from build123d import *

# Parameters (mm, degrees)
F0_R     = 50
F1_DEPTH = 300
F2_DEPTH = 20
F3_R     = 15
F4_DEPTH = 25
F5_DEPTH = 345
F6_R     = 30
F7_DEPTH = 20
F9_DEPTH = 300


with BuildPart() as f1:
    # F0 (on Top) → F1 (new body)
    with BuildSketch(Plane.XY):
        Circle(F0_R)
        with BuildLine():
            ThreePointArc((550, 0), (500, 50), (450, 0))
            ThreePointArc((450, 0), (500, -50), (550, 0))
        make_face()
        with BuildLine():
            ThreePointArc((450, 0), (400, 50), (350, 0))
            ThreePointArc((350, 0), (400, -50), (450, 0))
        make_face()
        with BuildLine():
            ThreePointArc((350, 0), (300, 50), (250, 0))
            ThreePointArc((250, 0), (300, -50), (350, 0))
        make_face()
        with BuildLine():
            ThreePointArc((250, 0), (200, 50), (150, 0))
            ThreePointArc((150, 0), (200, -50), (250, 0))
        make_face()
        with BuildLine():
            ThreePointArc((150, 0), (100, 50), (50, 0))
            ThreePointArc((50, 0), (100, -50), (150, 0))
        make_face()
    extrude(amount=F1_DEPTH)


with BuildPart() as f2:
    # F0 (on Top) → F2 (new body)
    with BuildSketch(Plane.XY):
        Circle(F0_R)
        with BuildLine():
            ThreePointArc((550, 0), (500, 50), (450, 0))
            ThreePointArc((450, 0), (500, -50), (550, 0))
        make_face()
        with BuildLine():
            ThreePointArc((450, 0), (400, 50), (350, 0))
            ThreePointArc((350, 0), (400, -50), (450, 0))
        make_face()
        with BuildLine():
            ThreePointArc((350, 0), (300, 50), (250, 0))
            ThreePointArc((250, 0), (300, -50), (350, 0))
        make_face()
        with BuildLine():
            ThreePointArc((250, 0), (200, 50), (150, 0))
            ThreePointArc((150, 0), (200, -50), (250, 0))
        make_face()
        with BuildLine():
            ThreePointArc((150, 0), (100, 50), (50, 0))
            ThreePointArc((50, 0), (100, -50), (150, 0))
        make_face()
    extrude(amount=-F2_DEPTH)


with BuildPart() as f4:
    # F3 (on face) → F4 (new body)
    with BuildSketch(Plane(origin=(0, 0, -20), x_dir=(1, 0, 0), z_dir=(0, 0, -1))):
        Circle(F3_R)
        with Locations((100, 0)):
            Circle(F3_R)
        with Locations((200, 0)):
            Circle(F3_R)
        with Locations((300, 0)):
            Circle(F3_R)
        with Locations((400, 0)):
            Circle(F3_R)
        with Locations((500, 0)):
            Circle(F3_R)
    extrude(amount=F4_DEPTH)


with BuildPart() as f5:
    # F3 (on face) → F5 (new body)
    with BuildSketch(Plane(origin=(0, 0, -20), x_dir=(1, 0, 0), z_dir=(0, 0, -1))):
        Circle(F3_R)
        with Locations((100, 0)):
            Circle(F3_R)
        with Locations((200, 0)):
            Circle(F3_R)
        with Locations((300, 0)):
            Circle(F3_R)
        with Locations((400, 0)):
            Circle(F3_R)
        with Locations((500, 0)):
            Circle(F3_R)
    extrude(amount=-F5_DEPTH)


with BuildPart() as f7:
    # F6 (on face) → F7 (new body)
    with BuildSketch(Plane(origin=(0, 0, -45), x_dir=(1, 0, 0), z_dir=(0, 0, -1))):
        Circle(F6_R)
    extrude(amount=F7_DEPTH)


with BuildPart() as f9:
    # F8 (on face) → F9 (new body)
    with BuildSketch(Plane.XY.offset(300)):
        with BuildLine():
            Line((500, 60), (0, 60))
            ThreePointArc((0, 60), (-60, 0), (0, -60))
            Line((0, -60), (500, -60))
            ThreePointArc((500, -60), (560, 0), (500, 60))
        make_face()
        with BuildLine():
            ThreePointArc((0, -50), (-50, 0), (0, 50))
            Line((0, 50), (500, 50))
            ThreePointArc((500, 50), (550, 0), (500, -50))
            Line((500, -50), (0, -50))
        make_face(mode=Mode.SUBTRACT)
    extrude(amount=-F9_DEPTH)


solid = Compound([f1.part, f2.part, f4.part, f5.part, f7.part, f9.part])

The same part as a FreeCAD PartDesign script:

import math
import FreeCAD as App
import Part
import Sketcher
from FreeCAD import Vector

doc = App.newDocument("Part")
body = doc.addObject("PartDesign::Body", "Body")
body.AllowCompound = True

sketch1 = body.newObject("Sketcher::SketchObject", "Sketch")
sketch1.AttachmentSupport = (doc.getObject("XY_Plane"), [""])
sketch1.MapMode = "FlatFace"
sketch1.addGeometry(Part.Circle(Vector(0, 0, 0), Vector(0, 0, 1), 50), False)
sketch1.addGeometry(Part.Circle(Vector(500, 0, 0), Vector(0, 0, 1), 50), False)
sketch1.addGeometry(Part.ArcOfCircle(Part.Circle(Vector(400, 0, 0), Vector(0, 0, 1), 50), math.radians(0), math.radians(179.999999)), False)
sketch1.addGeometry(Part.ArcOfCircle(Part.Circle(Vector(400, 0, 0), Vector(0, 0, 1), 50), math.radians(179.999999), math.radians(360)), False)
sketch1.addGeometry(Part.ArcOfCircle(Part.Circle(Vector(300, 0, 0), Vector(0, 0, 1), 50), math.radians(0.000001), math.radians(180)), False)
sketch1.addGeometry(Part.ArcOfCircle(Part.Circle(Vector(300, 0, 0), Vector(0, 0, 1), 50), math.radians(180), math.radians(360.000001)), False)
sketch1.addGeometry(Part.ArcOfCircle(Part.Circle(Vector(200, 0, 0), Vector(0, 0, 1), 50), math.radians(0), math.radians(180)), False)
sketch1.addGeometry(Part.ArcOfCircle(Part.Circle(Vector(200, 0, 0), Vector(0, 0, 1), 50), math.radians(-180), math.radians(0)), False)
sketch1.addGeometry(Part.ArcOfCircle(Part.Circle(Vector(100, 0, 0), Vector(0, 0, 1), 50), math.radians(180), math.radians(360)), False)
sketch1.addGeometry(Part.ArcOfCircle(Part.Circle(Vector(100, 0, 0), Vector(0, 0, 1), 50), math.radians(0), math.radians(180)), False)
sketch1.addConstraint(Sketcher.Constraint("Tangent", 2, 1, 3, 2))
sketch1.addConstraint(Sketcher.Constraint("Coincident", 3, 1, 2, 2))
sketch1.addConstraint(Sketcher.Constraint("Tangent", 4, 1, 5, 2))
sketch1.addConstraint(Sketcher.Constraint("Coincident", 5, 1, 4, 2))
sketch1.addConstraint(Sketcher.Constraint("Tangent", 6, 1, 7, 2))
sketch1.addConstraint(Sketcher.Constraint("Coincident", 7, 1, 6, 2))
sketch1.addConstraint(Sketcher.Constraint("Tangent", 8, 1, 9, 2))
sketch1.addConstraint(Sketcher.Constraint("Coincident", 9, 1, 8, 2))
sketch1.addConstraint(Sketcher.Constraint("Coincident", 0, 3, -1, 1))
sketch1.addConstraint(Sketcher.Constraint("Coincident", 4, 1, 3, 1))
sketch1.addConstraint(Sketcher.Constraint("Coincident", 6, 1, 5, 1))
sketch1.addConstraint(Sketcher.Constraint("Coincident", 9, 1, 7, 1))
sketch1.addConstraint(Sketcher.Constraint("Equal", 0, 1))
sketch1.addConstraint(Sketcher.Constraint("Equal", 1, 2))
sketch1.addConstraint(Sketcher.Constraint("Equal", 3, 4))
sketch1.addConstraint(Sketcher.Constraint("Equal", 5, 6))
sketch1.addConstraint(Sketcher.Constraint("Equal", 7, 8))
sketch1.addConstraint(Sketcher.Constraint("PointOnObject", 1, 3, -1))
sketch1.addConstraint(Sketcher.Constraint("PointOnObject", 2, 3, -1))
sketch1.addConstraint(Sketcher.Constraint("PointOnObject", 4, 3, -1))
sketch1.addConstraint(Sketcher.Constraint("PointOnObject", 6, 3, -1))
sketch1.addConstraint(Sketcher.Constraint("PointOnObject", 8, 3, -1))
sketch1.addConstraint(Sketcher.Constraint("PointOnObject", 2, 1, -1))
sketch1.addConstraint(Sketcher.Constraint("PointOnObject", 3, 1, -1))
sketch1.addConstraint(Sketcher.Constraint("PointOnObject", 5, 1, -1))
sketch1.addConstraint(Sketcher.Constraint("PointOnObject", 7, 1, -1))
sketch1.addConstraint(Sketcher.Constraint("PointOnObject", 8, 1, -1))
sketch1.addConstraint(Sketcher.Constraint("Diameter", 0, 100.0))
sketch1.addConstraint(Sketcher.Constraint("DistanceX", -1, 1, 1, 3, 500.0))
sketch1.addConstraint(Sketcher.Constraint("DistanceX", -1, 1, 2, 3, 400.0))
pad1 = body.newObject("PartDesign::Pad", "Pad")
pad1.Profile = sketch1
pad1.Length = 300
body2 = doc.addObject("PartDesign::Body", "Body001")
body2.AllowCompound = True

sketch2 = body2.newObject("Sketcher::SketchObject", "Sketch001")
sketch2.AttachmentSupport = (doc.getObject("XY_Plane001"), [""])
sketch2.MapMode = "FlatFace"
sketch2.addGeometry(Part.Circle(Vector(0, 0, 0), Vector(0, 0, 1), 50), False)
sketch2.addGeometry(Part.Circle(Vector(500, 0, 0), Vector(0, 0, 1), 50), False)
sketch2.addGeometry(Part.ArcOfCircle(Part.Circle(Vector(400, 0, 0), Vector(0, 0, 1), 50), math.radians(0), math.radians(179.999999)), False)
sketch2.addGeometry(Part.ArcOfCircle(Part.Circle(Vector(400, 0, 0), Vector(0, 0, 1), 50), math.radians(179.999999), math.radians(360)), False)
sketch2.addGeometry(Part.ArcOfCircle(Part.Circle(Vector(300, 0, 0), Vector(0, 0, 1), 50), math.radians(0.000001), math.radians(180)), False)
sketch2.addGeometry(Part.ArcOfCircle(Part.Circle(Vector(300, 0, 0), Vector(0, 0, 1), 50), math.radians(180), math.radians(360.000001)), False)
sketch2.addGeometry(Part.ArcOfCircle(Part.Circle(Vector(200, 0, 0), Vector(0, 0, 1), 50), math.radians(0), math.radians(180)), False)
sketch2.addGeometry(Part.ArcOfCircle(Part.Circle(Vector(200, 0, 0), Vector(0, 0, 1), 50), math.radians(-180), math.radians(0)), False)
sketch2.addGeometry(Part.ArcOfCircle(Part.Circle(Vector(100, 0, 0), Vector(0, 0, 1), 50), math.radians(180), math.radians(360)), False)
sketch2.addGeometry(Part.ArcOfCircle(Part.Circle(Vector(100, 0, 0), Vector(0, 0, 1), 50), math.radians(0), math.radians(180)), False)
sketch2.addConstraint(Sketcher.Constraint("Tangent", 2, 1, 3, 2))
sketch2.addConstraint(Sketcher.Constraint("Coincident", 3, 1, 2, 2))
sketch2.addConstraint(Sketcher.Constraint("Tangent", 4, 1, 5, 2))
sketch2.addConstraint(Sketcher.Constraint("Coincident", 5, 1, 4, 2))
sketch2.addConstraint(Sketcher.Constraint("Tangent", 6, 1, 7, 2))
sketch2.addConstraint(Sketcher.Constraint("Coincident", 7, 1, 6, 2))
sketch2.addConstraint(Sketcher.Constraint("Tangent", 8, 1, 9, 2))
sketch2.addConstraint(Sketcher.Constraint("Coincident", 9, 1, 8, 2))
sketch2.addConstraint(Sketcher.Constraint("Coincident", 0, 3, -1, 1))
sketch2.addConstraint(Sketcher.Constraint("Coincident", 4, 1, 3, 1))
sketch2.addConstraint(Sketcher.Constraint("Coincident", 6, 1, 5, 1))
sketch2.addConstraint(Sketcher.Constraint("Coincident", 9, 1, 7, 1))
sketch2.addConstraint(Sketcher.Constraint("Equal", 0, 1))
sketch2.addConstraint(Sketcher.Constraint("Equal", 1, 2))
sketch2.addConstraint(Sketcher.Constraint("Equal", 3, 4))
sketch2.addConstraint(Sketcher.Constraint("Equal", 5, 6))
sketch2.addConstraint(Sketcher.Constraint("Equal", 7, 8))
sketch2.addConstraint(Sketcher.Constraint("PointOnObject", 1, 3, -1))
sketch2.addConstraint(Sketcher.Constraint("PointOnObject", 2, 3, -1))
sketch2.addConstraint(Sketcher.Constraint("PointOnObject", 4, 3, -1))
sketch2.addConstraint(Sketcher.Constraint("PointOnObject", 6, 3, -1))
sketch2.addConstraint(Sketcher.Constraint("PointOnObject", 8, 3, -1))
sketch2.addConstraint(Sketcher.Constraint("PointOnObject", 2, 1, -1))
sketch2.addConstraint(Sketcher.Constraint("PointOnObject", 3, 1, -1))
sketch2.addConstraint(Sketcher.Constraint("PointOnObject", 5, 1, -1))
sketch2.addConstraint(Sketcher.Constraint("PointOnObject", 7, 1, -1))
sketch2.addConstraint(Sketcher.Constraint("PointOnObject", 8, 1, -1))
sketch2.addConstraint(Sketcher.Constraint("Diameter", 0, 100.0))
sketch2.addConstraint(Sketcher.Constraint("DistanceX", -1, 1, 1, 3, 500.0))
sketch2.addConstraint(Sketcher.Constraint("DistanceX", -1, 1, 2, 3, 400.0))
pad2 = body2.newObject("PartDesign::Pad", "Pad001")
pad2.Profile = sketch2
pad2.Length = 20
pad2.Reversed = True
body3 = doc.addObject("PartDesign::Body", "Body002")
body3.AllowCompound = True

sketch3 = body3.newObject("Sketcher::SketchObject", "Sketch002")
sketch3.AttachmentSupport = (doc.getObject("XY_Plane002"), [""])
sketch3.MapMode = "FlatFace"
sketch3.AttachmentOffset = App.Placement(Vector(0, 0, -20), App.Rotation())
sketch3.addGeometry(Part.Circle(Vector(0, 0, 0), Vector(0, 0, 1), 15), False)
sketch3.addGeometry(Part.Circle(Vector(100, 0, 0), Vector(0, 0, 1), 15), False)
sketch3.addGeometry(Part.Circle(Vector(200, 0, 0), Vector(0, 0, 1), 15), False)
sketch3.addGeometry(Part.Circle(Vector(300, 0, 0), Vector(0, 0, 1), 15), False)
sketch3.addGeometry(Part.Circle(Vector(400, 0, 0), Vector(0, 0, 1), 15), False)
sketch3.addGeometry(Part.Circle(Vector(500, 0, 0), Vector(0, 0, 1), 15), False)
sketch3.addConstraint(Sketcher.Constraint("Coincident", 0, 3, -1, 1))
sketch3.addConstraint(Sketcher.Constraint("Equal", 0, 1))
sketch3.addConstraint(Sketcher.Constraint("Equal", 1, 2))
sketch3.addConstraint(Sketcher.Constraint("Equal", 2, 3))
sketch3.addConstraint(Sketcher.Constraint("Equal", 3, 4))
sketch3.addConstraint(Sketcher.Constraint("Equal", 4, 5))
sketch3.addConstraint(Sketcher.Constraint("PointOnObject", 1, 3, -1))
sketch3.addConstraint(Sketcher.Constraint("PointOnObject", 2, 3, -1))
sketch3.addConstraint(Sketcher.Constraint("PointOnObject", 3, 3, -1))
sketch3.addConstraint(Sketcher.Constraint("PointOnObject", 4, 3, -1))
sketch3.addConstraint(Sketcher.Constraint("PointOnObject", 5, 3, -1))
sketch3.addConstraint(Sketcher.Constraint("Diameter", 0, 30.0))
sketch3.addConstraint(Sketcher.Constraint("DistanceX", -1, 1, 1, 3, 100.0))
sketch3.addConstraint(Sketcher.Constraint("DistanceX", -1, 1, 2, 3, 200.0))
sketch3.addConstraint(Sketcher.Constraint("DistanceX", -1, 1, 3, 3, 300.0))
sketch3.addConstraint(Sketcher.Constraint("DistanceX", -1, 1, 4, 3, 400.0))
sketch3.addConstraint(Sketcher.Constraint("DistanceX", -1, 1, 5, 3, 500.0))
pad3 = body3.newObject("PartDesign::Pad", "Pad002")
pad3.Profile = sketch3
pad3.Length = 25
pad3.Reversed = True
body4 = doc.addObject("PartDesign::Body", "Body003")
body4.AllowCompound = True

sketch4 = body4.newObject("Sketcher::SketchObject", "Sketch003")
sketch4.AttachmentSupport = (doc.getObject("XY_Plane003"), [""])
sketch4.MapMode = "FlatFace"
sketch4.AttachmentOffset = App.Placement(Vector(0, 0, -20), App.Rotation())
sketch4.addGeometry(Part.Circle(Vector(0, 0, 0), Vector(0, 0, 1), 15), False)
sketch4.addGeometry(Part.Circle(Vector(100, 0, 0), Vector(0, 0, 1), 15), False)
sketch4.addGeometry(Part.Circle(Vector(200, 0, 0), Vector(0, 0, 1), 15), False)
sketch4.addGeometry(Part.Circle(Vector(300, 0, 0), Vector(0, 0, 1), 15), False)
sketch4.addGeometry(Part.Circle(Vector(400, 0, 0), Vector(0, 0, 1), 15), False)
sketch4.addGeometry(Part.Circle(Vector(500, 0, 0), Vector(0, 0, 1), 15), False)
sketch4.addConstraint(Sketcher.Constraint("Coincident", 0, 3, -1, 1))
sketch4.addConstraint(Sketcher.Constraint("Equal", 0, 1))
sketch4.addConstraint(Sketcher.Constraint("Equal", 1, 2))
sketch4.addConstraint(Sketcher.Constraint("Equal", 2, 3))
sketch4.addConstraint(Sketcher.Constraint("Equal", 3, 4))
sketch4.addConstraint(Sketcher.Constraint("Equal", 4, 5))
sketch4.addConstraint(Sketcher.Constraint("PointOnObject", 1, 3, -1))
sketch4.addConstraint(Sketcher.Constraint("PointOnObject", 2, 3, -1))
sketch4.addConstraint(Sketcher.Constraint("PointOnObject", 3, 3, -1))
sketch4.addConstraint(Sketcher.Constraint("PointOnObject", 4, 3, -1))
sketch4.addConstraint(Sketcher.Constraint("PointOnObject", 5, 3, -1))
sketch4.addConstraint(Sketcher.Constraint("Diameter", 0, 30.0))
sketch4.addConstraint(Sketcher.Constraint("DistanceX", -1, 1, 1, 3, 100.0))
sketch4.addConstraint(Sketcher.Constraint("DistanceX", -1, 1, 2, 3, 200.0))
sketch4.addConstraint(Sketcher.Constraint("DistanceX", -1, 1, 3, 3, 300.0))
sketch4.addConstraint(Sketcher.Constraint("DistanceX", -1, 1, 4, 3, 400.0))
sketch4.addConstraint(Sketcher.Constraint("DistanceX", -1, 1, 5, 3, 500.0))
pad4 = body4.newObject("PartDesign::Pad", "Pad003")
pad4.Profile = sketch4
pad4.Length = 345
body5 = doc.addObject("PartDesign::Body", "Body004")

sketch5 = body5.newObject("Sketcher::SketchObject", "Sketch004")
sketch5.AttachmentSupport = (doc.getObject("XY_Plane004"), [""])
sketch5.MapMode = "FlatFace"
sketch5.AttachmentOffset = App.Placement(Vector(0, 0, -45), App.Rotation())
sketch5.addGeometry(Part.Circle(Vector(0, 0, 0), Vector(0, 0, 1), 30), False)
sketch5.addConstraint(Sketcher.Constraint("Coincident", 0, 3, -1, 1))
sketch5.addConstraint(Sketcher.Constraint("Diameter", 0, 60.0))
pad5 = body5.newObject("PartDesign::Pad", "Pad004")
pad5.Profile = sketch5
pad5.Length = 20
pad5.Reversed = True
body6 = doc.addObject("PartDesign::Body", "Body005")

sketch6 = body6.newObject("Sketcher::SketchObject", "Sketch005")
sketch6.AttachmentSupport = (doc.getObject("XY_Plane005"), [""])
sketch6.MapMode = "FlatFace"
sketch6.AttachmentOffset = App.Placement(Vector(0, 0, 300), App.Rotation())
sketch6.addGeometry(Part.LineSegment(Vector(500, 60, 0), Vector(0, 60, 0)), False)
sketch6.addGeometry(Part.ArcOfCircle(Part.Circle(Vector(0, 0, 0), Vector(0, 0, 1), 60), math.radians(90), math.radians(270)), False)
sketch6.addGeometry(Part.LineSegment(Vector(0, -60, 0), Vector(500, -60, 0)), False)
sketch6.addGeometry(Part.ArcOfCircle(Part.Circle(Vector(500, 0, 0), Vector(0, 0, 1), 60), math.radians(-90), math.radians(90)), False)
sketch6.addGeometry(Part.LineSegment(Vector(500, -50, 0), Vector(0, -50, 0)), False)
sketch6.addGeometry(Part.ArcOfCircle(Part.Circle(Vector(0, 0, 0), Vector(0, 0, 1), 50), math.radians(90), math.radians(270)), False)
sketch6.addGeometry(Part.LineSegment(Vector(0, 50, 0), Vector(500, 50, 0)), False)
sketch6.addGeometry(Part.ArcOfCircle(Part.Circle(Vector(500, 0, 0), Vector(0, 0, 1), 50), math.radians(-90), math.radians(90)), False)
sketch6.addConstraint(Sketcher.Constraint("Tangent", 0, 2, 1, 1))
sketch6.addConstraint(Sketcher.Constraint("Tangent", 1, 2, 2, 1))
sketch6.addConstraint(Sketcher.Constraint("Tangent", 2, 2, 3, 1))
sketch6.addConstraint(Sketcher.Constraint("Tangent", 3, 2, 0, 1))
sketch6.addConstraint(Sketcher.Constraint("Tangent", 4, 2, 5, 2))
sketch6.addConstraint(Sketcher.Constraint("Tangent", 5, 1, 6, 1))
sketch6.addConstraint(Sketcher.Constraint("Tangent", 6, 2, 7, 2))
sketch6.addConstraint(Sketcher.Constraint("Tangent", 7, 1, 4, 1))
sketch6.addConstraint(Sketcher.Constraint("Horizontal", 0))
sketch6.addConstraint(Sketcher.Constraint("Horizontal", 2))
sketch6.addConstraint(Sketcher.Constraint("Horizontal", 4))
sketch6.addConstraint(Sketcher.Constraint("Horizontal", 6))
sketch6.addConstraint(Sketcher.Constraint("Coincident", 1, 3, -1, 1))
sketch6.addConstraint(Sketcher.Constraint("Coincident", 5, 3, -1, 1))
sketch6.addConstraint(Sketcher.Constraint("Vertical", 7, 3, 2, 2))
sketch6.addConstraint(Sketcher.Constraint("Radius", 1, 60.0))
sketch6.addConstraint(Sketcher.Constraint("Radius", 5, 50.0))
sketch6.addConstraint(Sketcher.Constraint("DistanceX", 0, 2, 0, 1, 500.0))
pad6 = body6.newObject("PartDesign::Pad", "Pad005")
pad6.Profile = sketch6
pad6.Length = 300
pad6.Reversed = True

doc.recompute()
